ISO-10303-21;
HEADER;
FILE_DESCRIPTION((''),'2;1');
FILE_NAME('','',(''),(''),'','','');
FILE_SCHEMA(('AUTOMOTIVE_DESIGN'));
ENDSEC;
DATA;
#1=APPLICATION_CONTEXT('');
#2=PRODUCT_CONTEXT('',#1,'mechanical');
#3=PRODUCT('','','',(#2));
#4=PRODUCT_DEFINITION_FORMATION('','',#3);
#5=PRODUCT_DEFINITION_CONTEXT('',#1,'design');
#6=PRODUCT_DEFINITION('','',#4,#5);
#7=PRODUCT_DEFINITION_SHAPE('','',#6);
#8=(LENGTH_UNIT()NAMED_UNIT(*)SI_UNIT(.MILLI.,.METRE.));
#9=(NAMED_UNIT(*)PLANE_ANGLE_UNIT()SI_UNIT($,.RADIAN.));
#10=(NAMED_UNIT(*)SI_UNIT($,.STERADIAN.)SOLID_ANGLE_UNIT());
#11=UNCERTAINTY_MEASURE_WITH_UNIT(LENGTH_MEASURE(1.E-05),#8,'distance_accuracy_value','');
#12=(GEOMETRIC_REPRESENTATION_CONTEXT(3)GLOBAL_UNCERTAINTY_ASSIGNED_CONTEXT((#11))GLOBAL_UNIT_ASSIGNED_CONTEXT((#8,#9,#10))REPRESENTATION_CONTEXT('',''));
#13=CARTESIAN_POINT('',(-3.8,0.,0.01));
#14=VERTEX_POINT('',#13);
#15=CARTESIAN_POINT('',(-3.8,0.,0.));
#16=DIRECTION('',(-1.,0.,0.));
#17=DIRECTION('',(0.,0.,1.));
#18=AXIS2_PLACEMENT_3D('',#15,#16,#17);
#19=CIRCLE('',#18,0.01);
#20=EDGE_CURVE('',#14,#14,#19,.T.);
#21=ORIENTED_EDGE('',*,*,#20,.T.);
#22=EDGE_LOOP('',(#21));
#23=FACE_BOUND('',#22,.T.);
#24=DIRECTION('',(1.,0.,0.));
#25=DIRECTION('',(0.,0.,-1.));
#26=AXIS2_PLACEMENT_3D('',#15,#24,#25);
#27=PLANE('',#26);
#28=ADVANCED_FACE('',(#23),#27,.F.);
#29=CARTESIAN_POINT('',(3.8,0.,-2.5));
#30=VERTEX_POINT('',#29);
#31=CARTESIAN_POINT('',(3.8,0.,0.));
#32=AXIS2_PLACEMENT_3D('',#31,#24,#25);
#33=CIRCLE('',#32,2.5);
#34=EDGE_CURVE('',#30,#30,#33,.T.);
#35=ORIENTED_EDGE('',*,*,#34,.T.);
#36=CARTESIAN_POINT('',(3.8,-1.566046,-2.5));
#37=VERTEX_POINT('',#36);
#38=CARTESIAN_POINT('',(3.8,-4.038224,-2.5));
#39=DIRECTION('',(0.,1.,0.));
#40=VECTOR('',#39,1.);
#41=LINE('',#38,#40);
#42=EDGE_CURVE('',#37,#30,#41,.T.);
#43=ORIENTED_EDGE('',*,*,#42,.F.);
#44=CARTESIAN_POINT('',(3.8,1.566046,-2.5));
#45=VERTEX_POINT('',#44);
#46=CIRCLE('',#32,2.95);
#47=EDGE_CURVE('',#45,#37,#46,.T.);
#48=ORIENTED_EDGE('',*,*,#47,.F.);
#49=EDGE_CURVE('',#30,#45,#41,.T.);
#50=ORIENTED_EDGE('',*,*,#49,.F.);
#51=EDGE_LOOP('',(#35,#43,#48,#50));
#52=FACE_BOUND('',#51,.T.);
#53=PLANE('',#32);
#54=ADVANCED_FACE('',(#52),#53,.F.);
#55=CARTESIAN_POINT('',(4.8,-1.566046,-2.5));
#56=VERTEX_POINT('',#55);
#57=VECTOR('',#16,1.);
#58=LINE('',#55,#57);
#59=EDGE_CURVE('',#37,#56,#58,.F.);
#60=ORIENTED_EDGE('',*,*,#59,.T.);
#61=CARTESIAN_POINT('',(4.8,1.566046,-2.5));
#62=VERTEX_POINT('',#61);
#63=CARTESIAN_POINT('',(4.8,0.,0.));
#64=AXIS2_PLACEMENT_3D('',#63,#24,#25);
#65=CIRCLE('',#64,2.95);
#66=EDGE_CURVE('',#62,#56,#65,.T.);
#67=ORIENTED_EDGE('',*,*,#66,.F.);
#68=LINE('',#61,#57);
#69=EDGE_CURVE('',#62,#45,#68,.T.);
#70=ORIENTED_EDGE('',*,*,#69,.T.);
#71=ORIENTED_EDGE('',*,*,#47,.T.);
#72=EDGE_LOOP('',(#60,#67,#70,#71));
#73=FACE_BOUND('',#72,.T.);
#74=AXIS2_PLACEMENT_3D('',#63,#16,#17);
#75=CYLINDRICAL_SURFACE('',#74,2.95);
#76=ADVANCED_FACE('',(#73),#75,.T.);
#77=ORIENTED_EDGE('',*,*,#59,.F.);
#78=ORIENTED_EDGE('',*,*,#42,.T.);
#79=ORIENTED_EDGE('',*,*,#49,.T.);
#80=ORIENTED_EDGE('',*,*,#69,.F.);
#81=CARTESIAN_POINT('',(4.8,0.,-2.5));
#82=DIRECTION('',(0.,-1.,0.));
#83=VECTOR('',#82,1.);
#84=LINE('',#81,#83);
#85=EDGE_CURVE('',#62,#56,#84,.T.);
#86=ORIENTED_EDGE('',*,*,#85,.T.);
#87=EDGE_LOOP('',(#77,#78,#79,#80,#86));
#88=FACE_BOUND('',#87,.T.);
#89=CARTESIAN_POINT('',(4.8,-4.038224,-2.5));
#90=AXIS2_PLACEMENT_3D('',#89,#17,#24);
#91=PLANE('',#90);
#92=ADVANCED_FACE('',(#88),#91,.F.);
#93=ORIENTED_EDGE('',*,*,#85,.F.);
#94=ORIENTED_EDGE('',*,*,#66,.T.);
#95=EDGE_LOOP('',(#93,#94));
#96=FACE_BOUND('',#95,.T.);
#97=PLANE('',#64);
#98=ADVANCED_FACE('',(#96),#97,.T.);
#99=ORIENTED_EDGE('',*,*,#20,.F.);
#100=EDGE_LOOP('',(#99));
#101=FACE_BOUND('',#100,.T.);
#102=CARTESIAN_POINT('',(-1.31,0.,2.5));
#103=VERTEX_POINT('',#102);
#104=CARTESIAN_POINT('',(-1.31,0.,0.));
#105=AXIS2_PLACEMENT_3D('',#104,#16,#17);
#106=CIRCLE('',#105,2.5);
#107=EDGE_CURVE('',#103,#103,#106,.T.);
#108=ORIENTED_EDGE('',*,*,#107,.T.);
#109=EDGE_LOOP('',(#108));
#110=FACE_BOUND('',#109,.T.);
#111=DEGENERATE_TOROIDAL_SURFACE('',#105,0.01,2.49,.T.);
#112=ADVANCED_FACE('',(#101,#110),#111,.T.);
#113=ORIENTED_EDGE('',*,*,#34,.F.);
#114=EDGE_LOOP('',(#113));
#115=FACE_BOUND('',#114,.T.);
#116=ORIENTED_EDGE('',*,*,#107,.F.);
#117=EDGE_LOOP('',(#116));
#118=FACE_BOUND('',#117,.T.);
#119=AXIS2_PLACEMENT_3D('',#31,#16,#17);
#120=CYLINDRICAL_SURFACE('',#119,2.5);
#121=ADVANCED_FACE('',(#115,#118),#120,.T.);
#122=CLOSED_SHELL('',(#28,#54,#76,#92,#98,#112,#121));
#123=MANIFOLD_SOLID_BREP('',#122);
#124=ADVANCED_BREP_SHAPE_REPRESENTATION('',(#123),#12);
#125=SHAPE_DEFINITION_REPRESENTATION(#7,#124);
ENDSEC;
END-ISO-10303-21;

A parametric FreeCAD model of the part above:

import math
import FreeCAD as App
import Part
import Sketcher

V = App.Vector
Q = App.Units.Quantity

doc = App.newDocument("Part")
body = doc.addObject("PartDesign::Body", "Body")

sketch1 = body.newObject("Sketcher::SketchObject", "Sketch")
sketch1.AttachmentSupport = (doc.getObject("YZ_Plane"), [""])
sketch1.MapMode = "FlatFace"
sketch1.addGeometry(Part.Circle(V(0, 0, 0), V(0, 0, 1), 2.5), False)
sketch1.addConstraint([
    Sketcher.Constraint("Coincident", 0, 3, -1, 1),
    Sketcher.Constraint("Diameter", 0, Q("5 mm")),
])
pad1 = body.newObject("PartDesign::Pad", "Pad")
pad1.Profile = sketch1
pad1.Length = 7.6
pad1.Midplane = True

sketch2 = body.newObject("Sketcher::SketchObject", "Sketch001")
sketch2.AttachmentSupport = (doc.getObject("YZ_Plane"), [""])
sketch2.MapMode = "FlatFace"
sketch2.AttachmentOffset = App.Placement(V(0, 0, 3.8), App.Rotation())
sketch2.addGeometry(Part.Circle(V(0, 0, 0), V(0, 0, 1), 3), False)
sketch2.addConstraint([
    Sketcher.Constraint("Coincident", 0, 3, -1, 1),
    Sketcher.Constraint("Diameter", 0, Q("5.9 mm")),
])
pad2 = body.newObject("PartDesign::Pad", "Pad001")
pad2.Profile = sketch2
pad2.Length = 1

sketch3 = body.newObject("Sketcher::SketchObject", "Sketch002")
sketch3.AttachmentSupport = (doc.getObject("YZ_Plane"), [""])
sketch3.MapMode = "FlatFace"
sketch3.AttachmentOffset = App.Placement(V(0, 0, 3.8), App.Rotation())
sketch3.addGeometry([
    Part.LineSegment(V(2.9, -3.4, 0), V(-4, -3.4, 0)),
    Part.LineSegment(V(-4, -3.4, 0), V(-4, -2.5, 0)),
    Part.LineSegment(V(-4, -2.5, 0), V(2.9, -2.5, 0)),
    Part.LineSegment(V(2.9, -2.5, 0), V(2.9, -3.4, 0)),
], False)
sketch3.addConstraint([
    Sketcher.Constraint("Coincident", 0, 2, 1, 1),
    Sketcher.Constraint("Coincident", 1, 2, 2, 1),
    Sketcher.Constraint("Coincident", 2, 2, 3, 1),
    Sketcher.Constraint("Coincident", 3, 2, 0, 1),
    Sketcher.Constraint("Horizontal", 0),
    Sketcher.Constraint("Vertical", 1),
    Sketcher.Constraint("Horizontal", 2),
    Sketcher.Constraint("Vertical", 3),
    Sketcher.Constraint("DistanceY", 1, 2, -1, 1, Q("2.5 mm")),
    Sketcher.Constraint("DistanceX", 0, 2, 0, 1, Q("6.939291 mm")),
    Sketcher.Constraint("DistanceY", 1, 1, 1, 2, Q("0.865779 mm")),
    Sketcher.Constraint("DistanceX", 0, 2, -1, 1, Q("4.038224 mm")),
])
pocket1 = body.newObject("PartDesign::Pocket", "Pocket")
pocket1.Profile = sketch3
pocket1.Length = 1
pocket1.Reversed = True

sketch4 = body.newObject("Sketcher::SketchObject", "Sketch003")
sketch4.AttachmentSupport = (doc.getObject("XZ_Plane"), [""])
sketch4.MapMode = "FlatFace"
sketch4.addGeometry([
    Part.LineSegment(V(-3.8, 0, 0), V(-3.8, 2.5, 0)),
    Part.LineSegment(V(-3.8, 2.5, 0), V(-1.3, 2.5, 0)),
    Part.ArcOfCircle(Part.Circle(V(-1.3, 0, 0), V(0, 0, 1), 2.5), math.radians(90), math.radians(180)),
], False)
sketch4.addConstraint([
    Sketcher.Constraint("Coincident", 0, 2, 1, 1),
    Sketcher.Constraint("Tangent", 1, 2, 2, 1),
    Sketcher.Constraint("Tangent", 2, 2, 0, 1),
    Sketcher.Constraint("Vertical", 0),
    Sketcher.Constraint("Horizontal", 1),
    Sketcher.Constraint("Radius", 2, Q("2.49 mm")),
    Sketcher.Constraint("DistanceX", 0, 2, -1, 1, Q("3.8 mm")),
    Sketcher.Constraint("DistanceY", -1, 1, 0, 2, Q("2.5 mm")),
])
groove = body.newObject("PartDesign::Groove", "Groove")
groove.Profile = sketch4
groove.ReferenceAxis = (sketch4, ["H_Axis"])
groove.Angle = 360

doc.recompute()
